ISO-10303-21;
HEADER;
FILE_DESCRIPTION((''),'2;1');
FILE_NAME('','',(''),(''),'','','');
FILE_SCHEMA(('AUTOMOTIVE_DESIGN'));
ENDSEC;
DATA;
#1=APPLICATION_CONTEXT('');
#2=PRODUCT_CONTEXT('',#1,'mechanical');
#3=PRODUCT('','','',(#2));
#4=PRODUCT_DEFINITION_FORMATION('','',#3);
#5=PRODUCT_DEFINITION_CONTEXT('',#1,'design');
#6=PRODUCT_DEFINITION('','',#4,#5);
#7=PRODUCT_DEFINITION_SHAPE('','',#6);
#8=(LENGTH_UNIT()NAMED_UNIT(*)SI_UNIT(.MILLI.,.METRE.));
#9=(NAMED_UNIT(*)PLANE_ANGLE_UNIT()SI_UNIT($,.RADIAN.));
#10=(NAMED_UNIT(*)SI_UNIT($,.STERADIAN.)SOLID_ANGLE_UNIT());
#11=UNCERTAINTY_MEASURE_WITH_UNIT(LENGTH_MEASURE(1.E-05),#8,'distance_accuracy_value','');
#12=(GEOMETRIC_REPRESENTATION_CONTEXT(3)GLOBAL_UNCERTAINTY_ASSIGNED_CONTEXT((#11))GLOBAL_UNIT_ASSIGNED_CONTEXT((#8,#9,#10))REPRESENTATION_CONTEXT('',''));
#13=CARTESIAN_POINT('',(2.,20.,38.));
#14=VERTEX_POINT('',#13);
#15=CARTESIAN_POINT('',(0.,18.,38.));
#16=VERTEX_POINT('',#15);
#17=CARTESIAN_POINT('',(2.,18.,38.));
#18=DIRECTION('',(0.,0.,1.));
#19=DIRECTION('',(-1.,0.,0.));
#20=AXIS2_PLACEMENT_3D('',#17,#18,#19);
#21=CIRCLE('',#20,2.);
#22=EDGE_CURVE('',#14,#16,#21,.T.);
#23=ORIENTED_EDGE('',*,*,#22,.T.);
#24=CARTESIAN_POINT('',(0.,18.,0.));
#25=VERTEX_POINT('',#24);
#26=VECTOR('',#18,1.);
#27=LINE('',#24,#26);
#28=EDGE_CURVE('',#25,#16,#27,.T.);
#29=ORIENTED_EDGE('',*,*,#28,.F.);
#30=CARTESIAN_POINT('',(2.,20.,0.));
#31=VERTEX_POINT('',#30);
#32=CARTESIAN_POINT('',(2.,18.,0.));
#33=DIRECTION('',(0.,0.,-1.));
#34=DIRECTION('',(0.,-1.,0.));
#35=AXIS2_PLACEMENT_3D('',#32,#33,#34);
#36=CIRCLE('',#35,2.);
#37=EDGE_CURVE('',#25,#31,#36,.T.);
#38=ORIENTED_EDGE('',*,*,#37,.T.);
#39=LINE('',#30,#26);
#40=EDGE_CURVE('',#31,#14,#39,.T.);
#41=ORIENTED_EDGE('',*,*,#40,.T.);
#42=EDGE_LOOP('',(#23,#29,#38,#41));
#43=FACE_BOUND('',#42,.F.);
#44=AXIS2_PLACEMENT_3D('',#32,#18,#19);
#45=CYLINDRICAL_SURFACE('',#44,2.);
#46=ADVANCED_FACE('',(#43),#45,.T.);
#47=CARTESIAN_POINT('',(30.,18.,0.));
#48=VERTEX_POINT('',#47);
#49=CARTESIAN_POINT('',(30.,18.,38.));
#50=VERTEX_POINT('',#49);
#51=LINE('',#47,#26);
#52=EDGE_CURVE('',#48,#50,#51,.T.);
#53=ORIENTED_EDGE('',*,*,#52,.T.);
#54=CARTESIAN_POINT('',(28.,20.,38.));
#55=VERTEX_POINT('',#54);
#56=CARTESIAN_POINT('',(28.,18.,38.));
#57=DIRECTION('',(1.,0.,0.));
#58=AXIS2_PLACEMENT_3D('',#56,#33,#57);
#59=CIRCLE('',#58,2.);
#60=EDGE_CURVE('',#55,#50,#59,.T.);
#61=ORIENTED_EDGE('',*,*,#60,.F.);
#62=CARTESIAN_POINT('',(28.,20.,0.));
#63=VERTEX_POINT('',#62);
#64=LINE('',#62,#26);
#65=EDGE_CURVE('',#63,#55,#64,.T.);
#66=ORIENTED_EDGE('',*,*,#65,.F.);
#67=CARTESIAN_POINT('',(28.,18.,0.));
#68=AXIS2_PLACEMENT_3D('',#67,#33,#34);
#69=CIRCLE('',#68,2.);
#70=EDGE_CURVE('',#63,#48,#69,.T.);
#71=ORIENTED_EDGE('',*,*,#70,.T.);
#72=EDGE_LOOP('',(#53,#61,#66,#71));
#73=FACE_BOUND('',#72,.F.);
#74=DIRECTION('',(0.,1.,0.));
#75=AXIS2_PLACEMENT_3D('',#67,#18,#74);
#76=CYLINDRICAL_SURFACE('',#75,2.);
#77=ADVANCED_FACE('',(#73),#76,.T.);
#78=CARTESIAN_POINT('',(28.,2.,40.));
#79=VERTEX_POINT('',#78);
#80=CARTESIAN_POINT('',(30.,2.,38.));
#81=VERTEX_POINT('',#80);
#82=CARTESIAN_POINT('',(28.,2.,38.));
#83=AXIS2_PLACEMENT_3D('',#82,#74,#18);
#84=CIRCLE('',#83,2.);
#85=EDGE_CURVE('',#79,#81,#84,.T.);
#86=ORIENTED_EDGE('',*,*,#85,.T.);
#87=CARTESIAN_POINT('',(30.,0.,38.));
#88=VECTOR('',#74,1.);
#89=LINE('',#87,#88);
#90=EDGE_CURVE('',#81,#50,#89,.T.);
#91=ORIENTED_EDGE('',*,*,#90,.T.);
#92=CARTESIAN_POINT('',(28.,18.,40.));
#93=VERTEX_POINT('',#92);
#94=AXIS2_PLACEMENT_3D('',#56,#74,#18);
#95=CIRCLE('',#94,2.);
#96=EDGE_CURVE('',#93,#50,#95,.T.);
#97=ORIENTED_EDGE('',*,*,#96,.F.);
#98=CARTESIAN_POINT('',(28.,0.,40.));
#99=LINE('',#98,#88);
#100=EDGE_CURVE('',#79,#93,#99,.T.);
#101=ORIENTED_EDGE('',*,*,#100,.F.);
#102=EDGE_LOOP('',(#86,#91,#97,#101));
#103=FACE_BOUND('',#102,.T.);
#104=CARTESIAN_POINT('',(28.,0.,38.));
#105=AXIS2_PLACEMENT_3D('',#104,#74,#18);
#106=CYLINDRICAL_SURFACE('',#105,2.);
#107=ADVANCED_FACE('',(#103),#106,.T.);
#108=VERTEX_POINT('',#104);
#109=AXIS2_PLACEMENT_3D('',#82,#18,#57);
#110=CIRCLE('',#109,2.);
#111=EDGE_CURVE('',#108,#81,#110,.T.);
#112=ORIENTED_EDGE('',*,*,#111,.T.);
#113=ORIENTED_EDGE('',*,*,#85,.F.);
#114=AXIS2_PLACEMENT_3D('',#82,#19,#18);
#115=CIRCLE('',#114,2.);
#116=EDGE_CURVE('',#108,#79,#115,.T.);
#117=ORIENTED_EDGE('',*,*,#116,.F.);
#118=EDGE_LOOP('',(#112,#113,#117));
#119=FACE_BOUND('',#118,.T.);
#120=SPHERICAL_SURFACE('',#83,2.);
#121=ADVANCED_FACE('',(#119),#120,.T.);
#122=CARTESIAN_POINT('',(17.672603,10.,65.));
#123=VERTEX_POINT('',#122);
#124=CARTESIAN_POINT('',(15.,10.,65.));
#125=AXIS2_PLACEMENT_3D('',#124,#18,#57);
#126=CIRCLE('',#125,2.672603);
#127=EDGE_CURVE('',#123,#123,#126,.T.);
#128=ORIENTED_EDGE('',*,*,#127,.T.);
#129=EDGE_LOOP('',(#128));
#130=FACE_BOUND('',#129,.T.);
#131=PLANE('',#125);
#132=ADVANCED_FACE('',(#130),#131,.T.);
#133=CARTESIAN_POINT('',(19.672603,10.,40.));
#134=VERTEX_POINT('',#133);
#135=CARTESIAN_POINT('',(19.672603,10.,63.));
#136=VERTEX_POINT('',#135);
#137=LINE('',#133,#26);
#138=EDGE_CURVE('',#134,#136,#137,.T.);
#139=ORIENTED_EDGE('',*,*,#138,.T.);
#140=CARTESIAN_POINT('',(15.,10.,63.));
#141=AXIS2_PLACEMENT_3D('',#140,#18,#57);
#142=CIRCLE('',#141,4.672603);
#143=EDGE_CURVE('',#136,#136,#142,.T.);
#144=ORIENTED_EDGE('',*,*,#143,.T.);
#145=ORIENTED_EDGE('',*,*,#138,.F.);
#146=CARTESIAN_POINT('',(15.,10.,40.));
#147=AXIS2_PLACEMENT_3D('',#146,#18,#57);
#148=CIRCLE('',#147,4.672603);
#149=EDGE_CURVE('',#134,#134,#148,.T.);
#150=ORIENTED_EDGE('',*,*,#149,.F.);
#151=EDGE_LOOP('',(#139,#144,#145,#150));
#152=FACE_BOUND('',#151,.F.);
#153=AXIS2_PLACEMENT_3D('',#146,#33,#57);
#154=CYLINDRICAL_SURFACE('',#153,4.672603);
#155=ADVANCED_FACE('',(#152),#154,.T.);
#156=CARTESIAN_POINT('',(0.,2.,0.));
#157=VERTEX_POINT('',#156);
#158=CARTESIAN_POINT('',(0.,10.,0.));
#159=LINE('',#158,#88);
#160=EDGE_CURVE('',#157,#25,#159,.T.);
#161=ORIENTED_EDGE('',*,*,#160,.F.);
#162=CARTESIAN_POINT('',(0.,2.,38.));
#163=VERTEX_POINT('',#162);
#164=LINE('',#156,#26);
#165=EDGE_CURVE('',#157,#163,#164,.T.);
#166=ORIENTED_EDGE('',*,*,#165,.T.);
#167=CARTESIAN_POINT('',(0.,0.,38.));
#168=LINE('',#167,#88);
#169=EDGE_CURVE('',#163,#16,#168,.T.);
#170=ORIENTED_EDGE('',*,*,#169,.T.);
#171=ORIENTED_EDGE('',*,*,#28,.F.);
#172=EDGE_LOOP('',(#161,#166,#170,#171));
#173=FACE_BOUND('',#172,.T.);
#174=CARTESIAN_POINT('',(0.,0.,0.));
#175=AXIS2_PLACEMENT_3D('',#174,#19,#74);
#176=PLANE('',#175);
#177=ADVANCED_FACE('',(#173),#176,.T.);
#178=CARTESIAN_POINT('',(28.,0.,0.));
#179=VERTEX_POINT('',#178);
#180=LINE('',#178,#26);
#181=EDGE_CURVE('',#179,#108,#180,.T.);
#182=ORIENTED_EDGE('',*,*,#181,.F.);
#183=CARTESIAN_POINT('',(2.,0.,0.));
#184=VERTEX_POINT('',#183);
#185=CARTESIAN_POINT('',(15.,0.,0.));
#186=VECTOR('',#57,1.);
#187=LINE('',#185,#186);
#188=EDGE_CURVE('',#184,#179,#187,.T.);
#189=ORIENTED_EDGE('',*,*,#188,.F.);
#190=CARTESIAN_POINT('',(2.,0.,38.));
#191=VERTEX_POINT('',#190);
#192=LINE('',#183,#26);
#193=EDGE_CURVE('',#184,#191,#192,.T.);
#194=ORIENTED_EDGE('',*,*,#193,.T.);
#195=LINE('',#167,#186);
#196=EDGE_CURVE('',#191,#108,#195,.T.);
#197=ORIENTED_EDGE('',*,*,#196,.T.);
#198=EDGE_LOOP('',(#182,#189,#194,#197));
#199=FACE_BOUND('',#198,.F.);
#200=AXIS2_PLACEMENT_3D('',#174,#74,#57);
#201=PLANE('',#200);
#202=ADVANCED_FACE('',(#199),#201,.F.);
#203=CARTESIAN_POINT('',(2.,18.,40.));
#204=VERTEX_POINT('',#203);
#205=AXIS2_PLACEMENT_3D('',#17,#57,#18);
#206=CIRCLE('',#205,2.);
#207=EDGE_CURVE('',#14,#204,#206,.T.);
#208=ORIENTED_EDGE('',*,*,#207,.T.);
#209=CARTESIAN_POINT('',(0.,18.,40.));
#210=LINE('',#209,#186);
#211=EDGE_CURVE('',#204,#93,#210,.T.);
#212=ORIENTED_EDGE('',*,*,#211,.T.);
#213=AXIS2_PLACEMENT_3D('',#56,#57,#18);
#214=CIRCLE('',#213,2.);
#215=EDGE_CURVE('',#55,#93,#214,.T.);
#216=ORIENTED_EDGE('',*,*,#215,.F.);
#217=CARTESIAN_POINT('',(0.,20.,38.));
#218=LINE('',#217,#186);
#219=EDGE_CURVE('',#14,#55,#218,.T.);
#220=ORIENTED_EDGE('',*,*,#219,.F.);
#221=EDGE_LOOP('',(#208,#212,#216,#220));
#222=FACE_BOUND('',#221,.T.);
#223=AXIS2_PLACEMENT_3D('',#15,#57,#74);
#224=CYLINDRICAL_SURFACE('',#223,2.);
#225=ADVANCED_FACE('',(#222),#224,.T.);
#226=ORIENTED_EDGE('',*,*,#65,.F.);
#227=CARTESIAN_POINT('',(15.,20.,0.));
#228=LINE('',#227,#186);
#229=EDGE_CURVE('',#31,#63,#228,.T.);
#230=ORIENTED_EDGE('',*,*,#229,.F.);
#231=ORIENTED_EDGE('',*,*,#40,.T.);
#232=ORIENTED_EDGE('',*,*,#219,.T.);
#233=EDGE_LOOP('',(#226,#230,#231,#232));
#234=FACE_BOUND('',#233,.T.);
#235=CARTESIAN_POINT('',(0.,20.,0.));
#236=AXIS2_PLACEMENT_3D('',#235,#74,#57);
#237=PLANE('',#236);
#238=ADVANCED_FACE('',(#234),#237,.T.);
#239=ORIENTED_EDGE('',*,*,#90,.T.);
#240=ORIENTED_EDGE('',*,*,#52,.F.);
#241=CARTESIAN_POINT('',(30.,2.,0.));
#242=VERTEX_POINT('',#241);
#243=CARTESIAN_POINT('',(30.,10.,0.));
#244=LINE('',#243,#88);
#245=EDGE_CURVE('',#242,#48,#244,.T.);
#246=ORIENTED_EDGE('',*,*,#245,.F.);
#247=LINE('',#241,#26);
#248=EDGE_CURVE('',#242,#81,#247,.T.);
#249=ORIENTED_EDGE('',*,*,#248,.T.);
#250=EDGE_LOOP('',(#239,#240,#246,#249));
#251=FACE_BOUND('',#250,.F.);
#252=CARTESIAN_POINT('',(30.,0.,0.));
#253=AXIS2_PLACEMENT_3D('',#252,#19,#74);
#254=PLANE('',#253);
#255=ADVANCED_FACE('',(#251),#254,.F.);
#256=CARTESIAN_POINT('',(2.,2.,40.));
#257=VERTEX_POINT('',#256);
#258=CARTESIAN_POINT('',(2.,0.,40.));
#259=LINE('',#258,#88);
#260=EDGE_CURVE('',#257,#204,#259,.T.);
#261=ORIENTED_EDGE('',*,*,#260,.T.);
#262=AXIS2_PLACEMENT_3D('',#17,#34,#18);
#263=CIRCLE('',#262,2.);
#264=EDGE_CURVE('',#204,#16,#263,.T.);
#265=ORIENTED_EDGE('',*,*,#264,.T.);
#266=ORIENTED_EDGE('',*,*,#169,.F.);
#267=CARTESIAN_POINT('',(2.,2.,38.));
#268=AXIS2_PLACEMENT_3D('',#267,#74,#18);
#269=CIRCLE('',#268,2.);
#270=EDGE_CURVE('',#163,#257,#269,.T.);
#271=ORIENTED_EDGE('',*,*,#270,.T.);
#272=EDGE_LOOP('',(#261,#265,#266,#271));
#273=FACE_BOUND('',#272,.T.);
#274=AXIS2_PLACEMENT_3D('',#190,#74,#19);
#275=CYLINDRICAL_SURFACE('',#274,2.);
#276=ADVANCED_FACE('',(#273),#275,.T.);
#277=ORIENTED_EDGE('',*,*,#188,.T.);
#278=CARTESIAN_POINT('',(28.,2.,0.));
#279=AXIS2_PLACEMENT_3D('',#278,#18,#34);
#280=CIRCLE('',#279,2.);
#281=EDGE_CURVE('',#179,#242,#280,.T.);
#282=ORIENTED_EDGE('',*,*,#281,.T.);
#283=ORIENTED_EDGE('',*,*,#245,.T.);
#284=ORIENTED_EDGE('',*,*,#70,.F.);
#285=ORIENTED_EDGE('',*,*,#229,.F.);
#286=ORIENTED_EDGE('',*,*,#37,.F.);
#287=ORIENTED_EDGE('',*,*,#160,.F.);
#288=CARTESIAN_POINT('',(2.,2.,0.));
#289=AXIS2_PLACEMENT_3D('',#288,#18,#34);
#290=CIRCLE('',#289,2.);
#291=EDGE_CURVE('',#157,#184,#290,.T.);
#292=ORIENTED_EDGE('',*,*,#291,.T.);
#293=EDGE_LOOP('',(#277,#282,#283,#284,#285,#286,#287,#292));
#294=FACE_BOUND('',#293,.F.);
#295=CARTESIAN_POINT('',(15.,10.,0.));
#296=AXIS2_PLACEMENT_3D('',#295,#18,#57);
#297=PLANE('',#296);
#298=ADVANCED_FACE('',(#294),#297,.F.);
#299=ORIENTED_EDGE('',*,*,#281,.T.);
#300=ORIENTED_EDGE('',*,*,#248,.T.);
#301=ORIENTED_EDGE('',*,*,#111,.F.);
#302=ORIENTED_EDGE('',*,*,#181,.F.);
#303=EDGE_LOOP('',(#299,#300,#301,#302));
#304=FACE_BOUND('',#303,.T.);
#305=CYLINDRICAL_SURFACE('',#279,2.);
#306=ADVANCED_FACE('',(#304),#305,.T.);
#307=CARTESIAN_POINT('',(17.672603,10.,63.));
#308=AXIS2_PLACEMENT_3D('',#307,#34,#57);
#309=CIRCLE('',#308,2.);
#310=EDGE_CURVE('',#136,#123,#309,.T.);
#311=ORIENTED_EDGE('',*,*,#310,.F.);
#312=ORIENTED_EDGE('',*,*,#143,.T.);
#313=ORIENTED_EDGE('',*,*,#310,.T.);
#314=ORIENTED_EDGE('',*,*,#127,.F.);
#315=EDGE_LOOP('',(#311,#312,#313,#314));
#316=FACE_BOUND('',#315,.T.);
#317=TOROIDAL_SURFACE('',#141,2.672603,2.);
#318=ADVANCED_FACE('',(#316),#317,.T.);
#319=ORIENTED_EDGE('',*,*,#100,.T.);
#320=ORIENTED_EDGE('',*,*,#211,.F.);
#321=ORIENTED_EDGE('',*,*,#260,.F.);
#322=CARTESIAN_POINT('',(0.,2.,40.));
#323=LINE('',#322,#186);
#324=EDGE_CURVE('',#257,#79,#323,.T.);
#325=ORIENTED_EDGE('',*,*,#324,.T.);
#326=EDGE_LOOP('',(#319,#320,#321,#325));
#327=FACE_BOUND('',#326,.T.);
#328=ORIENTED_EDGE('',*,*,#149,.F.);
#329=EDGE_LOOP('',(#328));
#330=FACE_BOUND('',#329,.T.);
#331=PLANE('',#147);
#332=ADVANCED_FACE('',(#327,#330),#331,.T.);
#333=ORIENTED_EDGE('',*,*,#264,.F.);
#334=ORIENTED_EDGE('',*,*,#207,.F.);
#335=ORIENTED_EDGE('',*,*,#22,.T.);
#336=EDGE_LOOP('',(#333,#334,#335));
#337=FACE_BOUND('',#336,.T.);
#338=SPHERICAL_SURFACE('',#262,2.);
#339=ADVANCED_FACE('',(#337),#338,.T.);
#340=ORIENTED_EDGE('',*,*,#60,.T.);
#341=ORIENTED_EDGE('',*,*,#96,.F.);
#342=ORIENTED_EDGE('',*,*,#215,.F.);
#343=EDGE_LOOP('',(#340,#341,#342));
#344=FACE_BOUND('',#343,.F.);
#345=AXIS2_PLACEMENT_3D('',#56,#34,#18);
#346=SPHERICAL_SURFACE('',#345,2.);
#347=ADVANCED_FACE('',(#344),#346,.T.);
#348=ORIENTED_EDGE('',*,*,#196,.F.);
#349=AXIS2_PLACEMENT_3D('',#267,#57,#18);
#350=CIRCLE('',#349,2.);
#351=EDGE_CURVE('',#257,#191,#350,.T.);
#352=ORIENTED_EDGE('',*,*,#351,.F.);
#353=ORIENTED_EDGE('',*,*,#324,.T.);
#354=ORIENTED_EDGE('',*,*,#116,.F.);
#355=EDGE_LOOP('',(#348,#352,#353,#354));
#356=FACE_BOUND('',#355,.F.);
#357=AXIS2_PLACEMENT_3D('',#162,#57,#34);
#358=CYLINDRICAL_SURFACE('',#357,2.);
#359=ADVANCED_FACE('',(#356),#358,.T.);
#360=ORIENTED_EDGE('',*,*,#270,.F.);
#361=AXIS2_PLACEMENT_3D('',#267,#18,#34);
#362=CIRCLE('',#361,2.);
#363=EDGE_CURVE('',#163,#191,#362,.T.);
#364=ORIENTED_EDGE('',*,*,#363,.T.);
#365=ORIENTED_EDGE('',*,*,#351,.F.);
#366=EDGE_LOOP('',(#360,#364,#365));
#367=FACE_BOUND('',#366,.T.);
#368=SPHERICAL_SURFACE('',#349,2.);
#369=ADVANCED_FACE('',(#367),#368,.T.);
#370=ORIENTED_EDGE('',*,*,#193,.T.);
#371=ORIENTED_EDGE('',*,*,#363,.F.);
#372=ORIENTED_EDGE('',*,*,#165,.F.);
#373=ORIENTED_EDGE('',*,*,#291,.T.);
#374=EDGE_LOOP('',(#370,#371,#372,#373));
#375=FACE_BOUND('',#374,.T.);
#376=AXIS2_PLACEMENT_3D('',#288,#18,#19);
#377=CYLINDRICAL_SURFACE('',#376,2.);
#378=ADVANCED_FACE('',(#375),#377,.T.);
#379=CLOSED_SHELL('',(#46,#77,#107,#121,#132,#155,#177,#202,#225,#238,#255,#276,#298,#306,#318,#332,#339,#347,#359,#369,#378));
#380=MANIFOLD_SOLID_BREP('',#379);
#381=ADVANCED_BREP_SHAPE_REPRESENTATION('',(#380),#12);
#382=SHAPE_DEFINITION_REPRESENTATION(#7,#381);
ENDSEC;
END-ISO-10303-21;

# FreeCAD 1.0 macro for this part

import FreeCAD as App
import Part
import Sketcher

V = App.Vector


def edges_at(feature, points):
    """Names of the edges that pass closest to the given points."""
    edges = feature.Shape.Edges
    near = lambda p: min(range(len(edges)), key=lambda i: edges[i].distToShape(Part.Vertex(*p))[0])
    return sorted({f"Edge{near(p) + 1}" for p in points})

doc = App.newDocument("Part")
body = doc.addObject("PartDesign::Body", "Body")

# Sketch on XY plane
sketch1 = body.newObject("Sketcher::SketchObject", "Sketch")
sketch1.AttachmentSupport = (doc.getObject("XY_Plane"), [""])
sketch1.MapMode = "FlatFace"
sketch1.addGeometry([
    Part.LineSegment(V(0, 20, 0), V(0, 0, 0)),
    Part.LineSegment(V(0, 0, 0), V(30, 0, 0)),
    Part.LineSegment(V(30, 0, 0), V(30, 20, 0)),
    Part.LineSegment(V(30, 20, 0), V(0, 20, 0)),
], False)
sketch1.addConstraint([
    Sketcher.Constraint("Coincident", 0, 2, 1, 1),
    Sketcher.Constraint("Coincident", 1, 2, 2, 1),
    Sketcher.Constraint("Coincident", 2, 2, 3, 1),
    Sketcher.Constraint("Coincident", 3, 2, 0, 1),
    Sketcher.Constraint("Vertical", 0),
    Sketcher.Constraint("Horizontal", 1),
    Sketcher.Constraint("Vertical", 2),
    Sketcher.Constraint("Horizontal", 3),
    Sketcher.Constraint("Coincident", 0, 2, -1, 1),
    Sketcher.Constraint("DistanceX", 1, 1, 1, 2, 30.0),
    Sketcher.Constraint("DistanceY", 0, 2, 0, 1, 20.0),
])
pad1 = body.newObject("PartDesign::Pad", "Pad")
pad1.Profile = sketch1
pad1.Length = 40

# Sketch on XY plane
sketch2 = body.newObject("Sketcher::SketchObject", "Sketch001")
sketch2.AttachmentSupport = (doc.getObject("XY_Plane"), [""])
sketch2.MapMode = "FlatFace"
sketch2.AttachmentOffset = App.Placement(V(0, 0, 40), App.Rotation())
sketch2.addGeometry(Part.Circle(V(15, 10, 0), V(0, 0, 1), 4.7), False)
sketch2.addConstraint([
    Sketcher.Constraint("DistanceX", -1, 1, 0, 3, 15.0),
    Sketcher.Constraint("DistanceY", -1, 1, 0, 3, 10.0),
    Sketcher.Constraint("Diameter", 0, 9.345206),
])
pad2 = body.newObject("PartDesign::Pad", "Pad001")
pad2.Profile = sketch2
pad2.Length = 25
doc.recompute()

fillet = body.newObject("PartDesign::Fillet", "Fillet")
fillet.Base = (pad2, edges_at(pad2, [
    (10.327, 10, 65),
    (30, 10, 40),
    (15, 0, 40),
    (0, 10, 40),
    (15, 20, 40),
    (30, 20, 20),
    (30, 0, 20),
    (0, 0, 20),
    (0, 20, 20),
]))
fillet.Radius = 2

doc.recompute()
